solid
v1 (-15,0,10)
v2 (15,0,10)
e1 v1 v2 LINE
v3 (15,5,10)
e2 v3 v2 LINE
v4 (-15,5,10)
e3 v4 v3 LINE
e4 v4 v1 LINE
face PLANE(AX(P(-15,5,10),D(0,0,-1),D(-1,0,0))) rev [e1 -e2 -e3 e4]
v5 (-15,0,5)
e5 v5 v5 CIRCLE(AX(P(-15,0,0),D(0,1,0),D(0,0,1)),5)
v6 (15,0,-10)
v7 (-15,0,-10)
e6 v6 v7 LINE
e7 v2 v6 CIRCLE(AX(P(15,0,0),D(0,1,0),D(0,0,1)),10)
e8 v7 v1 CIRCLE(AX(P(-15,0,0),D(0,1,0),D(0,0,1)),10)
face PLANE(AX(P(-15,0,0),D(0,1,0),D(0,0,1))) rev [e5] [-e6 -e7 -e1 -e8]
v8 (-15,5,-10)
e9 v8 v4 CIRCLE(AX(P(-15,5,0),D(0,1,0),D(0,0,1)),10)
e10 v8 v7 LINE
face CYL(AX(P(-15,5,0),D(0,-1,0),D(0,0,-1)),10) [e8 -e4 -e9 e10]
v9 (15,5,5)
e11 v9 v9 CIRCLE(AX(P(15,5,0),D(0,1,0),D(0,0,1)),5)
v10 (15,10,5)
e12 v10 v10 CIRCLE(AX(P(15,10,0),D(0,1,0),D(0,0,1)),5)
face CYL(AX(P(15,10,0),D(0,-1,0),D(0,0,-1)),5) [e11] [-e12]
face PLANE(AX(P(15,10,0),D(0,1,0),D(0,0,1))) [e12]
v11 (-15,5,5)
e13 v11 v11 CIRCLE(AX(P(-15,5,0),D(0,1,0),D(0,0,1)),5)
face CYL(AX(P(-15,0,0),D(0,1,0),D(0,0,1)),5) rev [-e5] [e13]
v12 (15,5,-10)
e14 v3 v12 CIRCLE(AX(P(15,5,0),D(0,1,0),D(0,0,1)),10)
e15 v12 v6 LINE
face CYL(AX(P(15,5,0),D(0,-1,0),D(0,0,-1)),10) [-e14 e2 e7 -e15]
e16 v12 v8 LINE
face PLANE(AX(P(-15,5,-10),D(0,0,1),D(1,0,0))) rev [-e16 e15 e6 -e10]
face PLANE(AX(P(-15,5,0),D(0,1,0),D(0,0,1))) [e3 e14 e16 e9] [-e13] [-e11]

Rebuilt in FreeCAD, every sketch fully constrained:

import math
import FreeCAD as App
import Part
import Sketcher

V = App.Vector

doc = App.newDocument("Part")
params = doc.addObject("Spreadsheet::Sheet", "Params")
for row, (alias, value) in enumerate([
    ("sketch1_radius", "10 mm"),
    ("sketch1_width", "30 mm"),
    ("pad1_length", "5 mm"),
    ("sketch2_diameter", "10 mm"),
    ("pad2_length", "5 mm"),
    ("sketch3_diameter", "10 mm"),
], start=1):
    params.set(f"A{row}", alias)
    params.set(f"B{row}", "=" + value)
    params.setAlias(f"B{row}", alias)

body = doc.addObject("PartDesign::Body", "Body")

sketch1 = body.newObject("Sketcher::SketchObject", "Sketch")
sketch1.AttachmentSupport = (doc.getObject("XZ_Plane"), [""])
sketch1.MapMode = "FlatFace"
sketch1.addGeometry([
    Part.LineSegment(V(15, -10, 0), V(-15, -10, 0)),
    Part.ArcOfCircle(Part.Circle(V(-15, 0, 0), V(0, 0, 1), 10), math.radians(90), math.radians(270)),
    Part.LineSegment(V(-15, 10, 0), V(15, 10, 0)),
    Part.ArcOfCircle(Part.Circle(V(15, 0, 0), V(0, 0, 1), 10), math.radians(-90), math.radians(90)),
], False)
sketch1.addConstraint([
    Sketcher.Constraint("Tangent", 0, 2, 1, 2),
    Sketcher.Constraint("Tangent", 1, 1, 2, 1),
    Sketcher.Constraint("Tangent", 2, 2, 3, 2),
    Sketcher.Constraint("Tangent", 3, 1, 0, 1),
    Sketcher.Constraint("Horizontal", 0),
    Sketcher.Constraint("Horizontal", 2),
    Sketcher.Constraint("Symmetric", 1, 3, 3, 3, -1, 1),
    Sketcher.Constraint("Radius", 1, 10.0),
    Sketcher.Constraint("DistanceX", 0, 2, 0, 1, 30.0),
])
sketch1.setExpression("Constraints[7]", "Params.sketch1_radius")
sketch1.setExpression("Constraints[8]", "Params.sketch1_width")
pad1 = body.newObject("PartDesign::Pad", "Pad")
pad1.Profile = sketch1
pad1.setExpression("Length", "Params.pad1_length")
pad1.Reversed = True

sketch2 = body.newObject("Sketcher::SketchObject", "Sketch001")
sketch2.AttachmentSupport = (doc.getObject("XZ_Plane"), [""])
sketch2.MapMode = "FlatFace"
sketch2.AttachmentOffset = App.Placement(V(0, 0, -5), App.Rotation())
sketch2.addGeometry(Part.Circle(V(15, 0, 0), V(0, 0, 1), 5), False)
sketch2.addConstraint([
    Sketcher.Constraint("PointOnObject", 0, 3, -1),
    Sketcher.Constraint("Diameter", 0, 10.0),
    Sketcher.Constraint("DistanceX", -1, 1, 0, 3, 15.0),
])
sketch2.setExpression("Constraints[1]", "Params.sketch2_diameter")
pad2 = body.newObject("PartDesign::Pad", "Pad001")
pad2.Profile = sketch2
pad2.setExpression("Length", "Params.pad2_length")
pad2.Reversed = True

sketch3 = body.newObject("Sketcher::SketchObject", "Sketch002")
sketch3.AttachmentSupport = (doc.getObject("XZ_Plane"), [""])
sketch3.MapMode = "FlatFace"
sketch3.AttachmentOffset = App.Placement(V(0, 0, -5), App.Rotation())
sketch3.addGeometry(Part.Circle(V(-15, 0, 0), V(0, 0, 1), 5), False)
sketch3.addConstraint([
    Sketcher.Constraint("PointOnObject", 0, 3, -1),
    Sketcher.Constraint("Diameter", 0, 10.0),
    Sketcher.Constraint("DistanceX", 0, 3, -1, 1, 15.0),
])
sketch3.setExpression("Constraints[1]", "Params.sketch3_diameter")
pocket1 = body.newObject("PartDesign::Pocket", "Pocket")
pocket1.Profile = sketch3
pocket1.Type = "ThroughAll"
pocket1.Reversed = True

doc.recompute()
